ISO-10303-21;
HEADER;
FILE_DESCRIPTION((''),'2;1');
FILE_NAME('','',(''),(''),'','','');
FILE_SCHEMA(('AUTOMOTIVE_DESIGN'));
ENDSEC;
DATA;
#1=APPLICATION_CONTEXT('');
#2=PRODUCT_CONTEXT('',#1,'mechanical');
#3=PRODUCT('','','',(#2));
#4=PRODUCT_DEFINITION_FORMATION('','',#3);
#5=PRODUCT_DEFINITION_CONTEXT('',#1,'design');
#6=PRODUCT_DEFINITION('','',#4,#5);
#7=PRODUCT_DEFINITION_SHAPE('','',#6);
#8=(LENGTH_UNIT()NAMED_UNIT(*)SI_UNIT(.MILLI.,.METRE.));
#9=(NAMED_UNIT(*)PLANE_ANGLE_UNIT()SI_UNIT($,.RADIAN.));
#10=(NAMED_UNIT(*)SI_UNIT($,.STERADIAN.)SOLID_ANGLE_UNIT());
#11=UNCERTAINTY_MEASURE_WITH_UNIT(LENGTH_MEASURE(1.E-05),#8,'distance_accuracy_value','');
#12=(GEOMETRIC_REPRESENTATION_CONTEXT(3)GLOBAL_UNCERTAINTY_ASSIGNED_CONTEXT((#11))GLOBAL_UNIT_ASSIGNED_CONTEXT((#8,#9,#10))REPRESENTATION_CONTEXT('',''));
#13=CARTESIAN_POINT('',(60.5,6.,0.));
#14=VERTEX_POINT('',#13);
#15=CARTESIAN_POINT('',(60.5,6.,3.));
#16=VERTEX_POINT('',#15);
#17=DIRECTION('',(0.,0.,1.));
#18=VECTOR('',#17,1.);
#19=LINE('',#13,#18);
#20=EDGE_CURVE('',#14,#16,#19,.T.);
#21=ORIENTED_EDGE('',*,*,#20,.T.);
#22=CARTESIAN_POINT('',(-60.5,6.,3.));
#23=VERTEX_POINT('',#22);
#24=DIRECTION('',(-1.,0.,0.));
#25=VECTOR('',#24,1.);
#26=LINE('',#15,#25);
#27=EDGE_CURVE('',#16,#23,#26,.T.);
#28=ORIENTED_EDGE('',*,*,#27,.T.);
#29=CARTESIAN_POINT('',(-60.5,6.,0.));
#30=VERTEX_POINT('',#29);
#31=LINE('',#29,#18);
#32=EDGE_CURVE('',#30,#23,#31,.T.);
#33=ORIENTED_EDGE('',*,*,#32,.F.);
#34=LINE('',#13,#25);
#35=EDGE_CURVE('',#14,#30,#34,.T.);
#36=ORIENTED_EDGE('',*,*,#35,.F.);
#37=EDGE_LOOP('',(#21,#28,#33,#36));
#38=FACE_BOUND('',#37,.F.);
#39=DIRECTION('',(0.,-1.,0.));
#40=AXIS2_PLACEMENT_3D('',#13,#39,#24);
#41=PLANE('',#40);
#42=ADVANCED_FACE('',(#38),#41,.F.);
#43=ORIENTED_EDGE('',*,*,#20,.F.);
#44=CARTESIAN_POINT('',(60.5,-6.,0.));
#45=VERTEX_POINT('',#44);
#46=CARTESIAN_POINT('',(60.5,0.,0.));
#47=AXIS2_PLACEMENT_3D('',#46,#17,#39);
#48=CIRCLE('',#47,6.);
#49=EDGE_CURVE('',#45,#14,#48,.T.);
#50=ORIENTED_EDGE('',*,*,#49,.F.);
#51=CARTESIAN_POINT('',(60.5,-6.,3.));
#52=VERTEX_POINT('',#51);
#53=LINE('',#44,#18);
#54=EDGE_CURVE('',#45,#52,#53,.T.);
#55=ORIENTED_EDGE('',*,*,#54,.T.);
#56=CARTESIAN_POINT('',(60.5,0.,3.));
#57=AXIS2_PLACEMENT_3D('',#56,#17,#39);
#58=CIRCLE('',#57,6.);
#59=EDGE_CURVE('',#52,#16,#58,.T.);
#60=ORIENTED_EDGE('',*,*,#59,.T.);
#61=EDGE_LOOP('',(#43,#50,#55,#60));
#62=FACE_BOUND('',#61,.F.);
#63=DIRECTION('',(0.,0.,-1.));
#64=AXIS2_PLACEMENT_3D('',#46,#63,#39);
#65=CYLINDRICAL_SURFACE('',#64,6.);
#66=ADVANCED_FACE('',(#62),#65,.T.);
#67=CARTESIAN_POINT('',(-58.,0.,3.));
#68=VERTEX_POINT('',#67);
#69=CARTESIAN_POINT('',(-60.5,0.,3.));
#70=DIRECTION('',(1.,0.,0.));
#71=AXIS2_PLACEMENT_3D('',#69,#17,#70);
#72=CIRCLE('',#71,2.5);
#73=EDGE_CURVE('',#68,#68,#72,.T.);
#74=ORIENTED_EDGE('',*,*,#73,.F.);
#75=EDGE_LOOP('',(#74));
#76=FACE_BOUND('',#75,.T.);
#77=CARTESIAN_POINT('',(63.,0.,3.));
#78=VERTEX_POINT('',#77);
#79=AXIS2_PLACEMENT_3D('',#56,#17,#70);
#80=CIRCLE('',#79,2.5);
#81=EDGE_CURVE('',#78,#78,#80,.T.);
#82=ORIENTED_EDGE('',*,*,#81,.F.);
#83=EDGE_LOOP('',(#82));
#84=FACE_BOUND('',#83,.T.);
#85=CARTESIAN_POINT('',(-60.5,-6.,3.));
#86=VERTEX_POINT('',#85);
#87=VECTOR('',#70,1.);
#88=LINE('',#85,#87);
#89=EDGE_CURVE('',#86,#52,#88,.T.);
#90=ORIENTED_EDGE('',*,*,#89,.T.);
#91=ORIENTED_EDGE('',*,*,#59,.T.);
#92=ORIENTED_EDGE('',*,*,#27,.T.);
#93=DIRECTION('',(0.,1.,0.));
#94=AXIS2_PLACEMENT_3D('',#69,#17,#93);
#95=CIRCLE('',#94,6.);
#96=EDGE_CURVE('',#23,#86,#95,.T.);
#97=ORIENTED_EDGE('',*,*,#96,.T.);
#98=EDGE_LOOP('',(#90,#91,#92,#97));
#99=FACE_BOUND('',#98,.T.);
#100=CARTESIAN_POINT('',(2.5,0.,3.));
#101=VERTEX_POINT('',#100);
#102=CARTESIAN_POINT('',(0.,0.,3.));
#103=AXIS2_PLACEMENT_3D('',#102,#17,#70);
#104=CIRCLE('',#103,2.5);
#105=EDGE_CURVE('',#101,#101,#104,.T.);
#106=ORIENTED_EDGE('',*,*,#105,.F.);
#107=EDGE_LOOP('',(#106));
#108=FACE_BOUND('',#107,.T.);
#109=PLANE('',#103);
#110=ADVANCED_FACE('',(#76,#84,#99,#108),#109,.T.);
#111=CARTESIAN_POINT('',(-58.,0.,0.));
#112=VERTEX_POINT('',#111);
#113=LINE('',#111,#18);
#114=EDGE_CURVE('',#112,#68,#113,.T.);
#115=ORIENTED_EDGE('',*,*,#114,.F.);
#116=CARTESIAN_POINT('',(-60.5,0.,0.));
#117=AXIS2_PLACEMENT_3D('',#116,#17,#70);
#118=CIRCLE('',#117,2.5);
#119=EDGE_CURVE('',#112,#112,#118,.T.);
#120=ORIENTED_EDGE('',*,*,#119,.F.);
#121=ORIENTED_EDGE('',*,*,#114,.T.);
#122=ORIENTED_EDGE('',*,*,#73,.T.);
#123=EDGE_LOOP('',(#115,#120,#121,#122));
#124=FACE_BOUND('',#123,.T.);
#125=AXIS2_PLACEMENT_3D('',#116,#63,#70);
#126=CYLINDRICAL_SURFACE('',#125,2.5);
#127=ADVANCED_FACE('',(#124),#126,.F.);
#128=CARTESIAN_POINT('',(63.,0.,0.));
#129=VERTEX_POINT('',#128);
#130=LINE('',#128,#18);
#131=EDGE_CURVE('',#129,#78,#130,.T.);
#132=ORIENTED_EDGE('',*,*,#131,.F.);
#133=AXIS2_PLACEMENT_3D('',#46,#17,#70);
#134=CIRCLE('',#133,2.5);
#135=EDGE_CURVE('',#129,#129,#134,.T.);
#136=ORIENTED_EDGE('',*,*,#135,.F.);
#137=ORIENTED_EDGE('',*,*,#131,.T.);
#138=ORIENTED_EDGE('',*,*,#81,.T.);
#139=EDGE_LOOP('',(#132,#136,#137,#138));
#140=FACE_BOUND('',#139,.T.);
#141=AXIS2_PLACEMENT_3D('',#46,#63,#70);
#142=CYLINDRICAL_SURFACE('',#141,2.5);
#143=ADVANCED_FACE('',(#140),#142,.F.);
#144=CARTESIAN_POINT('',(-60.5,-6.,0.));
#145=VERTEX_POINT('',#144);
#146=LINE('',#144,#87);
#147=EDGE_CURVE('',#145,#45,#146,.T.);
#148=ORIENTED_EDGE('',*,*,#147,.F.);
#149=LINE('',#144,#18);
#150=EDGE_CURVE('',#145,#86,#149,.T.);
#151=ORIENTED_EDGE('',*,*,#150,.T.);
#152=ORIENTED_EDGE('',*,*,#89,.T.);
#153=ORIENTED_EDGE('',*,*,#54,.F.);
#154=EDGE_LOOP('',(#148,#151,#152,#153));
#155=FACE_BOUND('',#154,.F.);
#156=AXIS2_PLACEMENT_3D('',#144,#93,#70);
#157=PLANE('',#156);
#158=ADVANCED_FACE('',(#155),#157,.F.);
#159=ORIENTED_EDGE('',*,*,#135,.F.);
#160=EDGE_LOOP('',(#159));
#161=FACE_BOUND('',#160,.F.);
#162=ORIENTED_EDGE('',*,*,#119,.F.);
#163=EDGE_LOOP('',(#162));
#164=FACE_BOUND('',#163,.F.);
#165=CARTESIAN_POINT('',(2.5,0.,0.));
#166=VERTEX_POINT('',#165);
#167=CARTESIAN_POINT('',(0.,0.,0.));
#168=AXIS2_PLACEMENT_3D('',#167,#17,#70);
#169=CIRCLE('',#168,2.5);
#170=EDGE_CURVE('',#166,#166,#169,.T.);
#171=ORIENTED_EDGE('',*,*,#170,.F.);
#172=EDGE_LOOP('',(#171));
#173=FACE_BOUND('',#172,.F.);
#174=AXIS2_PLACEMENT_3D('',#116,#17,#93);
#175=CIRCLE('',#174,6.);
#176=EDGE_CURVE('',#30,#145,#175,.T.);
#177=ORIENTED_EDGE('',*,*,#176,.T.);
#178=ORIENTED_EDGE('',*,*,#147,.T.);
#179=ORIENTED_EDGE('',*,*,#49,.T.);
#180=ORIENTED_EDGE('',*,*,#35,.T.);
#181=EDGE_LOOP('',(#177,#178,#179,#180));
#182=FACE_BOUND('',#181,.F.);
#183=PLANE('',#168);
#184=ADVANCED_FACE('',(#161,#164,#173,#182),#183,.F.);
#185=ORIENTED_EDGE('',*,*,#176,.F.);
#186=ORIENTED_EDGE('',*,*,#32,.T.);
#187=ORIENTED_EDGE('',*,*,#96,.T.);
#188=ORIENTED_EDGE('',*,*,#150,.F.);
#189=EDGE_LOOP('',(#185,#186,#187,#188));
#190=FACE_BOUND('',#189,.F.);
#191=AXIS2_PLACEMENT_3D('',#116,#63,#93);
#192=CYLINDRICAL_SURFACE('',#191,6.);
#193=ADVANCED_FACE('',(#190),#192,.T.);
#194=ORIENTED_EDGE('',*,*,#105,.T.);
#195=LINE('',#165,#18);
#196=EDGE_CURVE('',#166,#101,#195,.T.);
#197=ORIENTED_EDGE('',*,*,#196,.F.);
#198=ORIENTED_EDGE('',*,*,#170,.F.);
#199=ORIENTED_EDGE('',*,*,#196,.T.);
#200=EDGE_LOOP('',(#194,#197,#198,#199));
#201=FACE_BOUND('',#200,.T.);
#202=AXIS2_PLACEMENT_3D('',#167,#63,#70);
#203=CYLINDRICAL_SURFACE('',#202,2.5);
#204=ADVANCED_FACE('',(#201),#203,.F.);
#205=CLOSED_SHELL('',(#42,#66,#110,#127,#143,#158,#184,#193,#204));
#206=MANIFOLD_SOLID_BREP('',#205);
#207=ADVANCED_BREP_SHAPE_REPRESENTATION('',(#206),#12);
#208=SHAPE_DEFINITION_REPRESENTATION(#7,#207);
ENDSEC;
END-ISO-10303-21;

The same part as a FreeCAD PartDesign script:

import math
import FreeCAD as App
import Part
import Sketcher
from FreeCAD import Vector

doc = App.newDocument("Part")
body = doc.addObject("PartDesign::Body", "Body")

sketch1 = doc.addObject("Sketcher::SketchObject", "Sketch")
body.addObject(sketch1)
sketch1.AttachmentSupport = (doc.XY_Plane, [""])
sketch1.MapMode = "FlatFace"
sketch1.addGeometry(Part.ArcOfCircle(Part.Circle(Vector(-60.5, 0, 0), Vector(0, 0, 1), 6), math.radians(90), math.radians(270)), False)
sketch1.addGeometry(Part.LineSegment(Vector(-60.5, -6, 0), Vector(60.5, -6, 0)), False)
sketch1.addGeometry(Part.ArcOfCircle(Part.Circle(Vector(60.5, 0, 0), Vector(0, 0, 1), 6), math.radians(-90), math.radians(90)), False)
sketch1.addGeometry(Part.LineSegment(Vector(60.5, 6, 0), Vector(-60.5, 6, 0)), False)
sketch1.addGeometry(Part.Circle(Vector(-60.5, 0, 0), Vector(0, 0, 1), 2.5), False)
sketch1.addGeometry(Part.Circle(Vector(0, 0, 0), Vector(0, 0, 1), 2.5), False)
sketch1.addGeometry(Part.Circle(Vector(60.5, 0, 0), Vector(0, 0, 1), 2.5), False)
sketch1.addConstraint(Sketcher.Constraint("Tangent", 0, 2, 1, 1))
sketch1.addConstraint(Sketcher.Constraint("Tangent", 1, 2, 2, 1))
sketch1.addConstraint(Sketcher.Constraint("Tangent", 2, 2, 3, 1))
sketch1.addConstraint(Sketcher.Constraint("Tangent", 3, 2, 0, 1))
sketch1.addConstraint(Sketcher.Constraint("Horizontal", 1))
sketch1.addConstraint(Sketcher.Constraint("Horizontal", 3))
sketch1.addConstraint(Sketcher.Constraint("Coincident", 5, 3, -1, 1))
sketch1.addConstraint(Sketcher.Constraint("Coincident", 4, 3, 0, 3))
sketch1.addConstraint(Sketcher.Constraint("Coincident", 6, 3, 2, 3))
sketch1.addConstraint(Sketcher.Constraint("Equal", 4, 5))
sketch1.addConstraint(Sketcher.Constraint("Equal", 5, 6))
sketch1.addConstraint(Sketcher.Constraint("Symmetric", 0, 3, 2, 3, -1, 1))
sketch1.addConstraint(Sketcher.Constraint("Diameter", 4, 5.0))
sketch1.addConstraint(Sketcher.Constraint("Radius", 0, 6.0))
sketch1.addConstraint(Sketcher.Constraint("DistanceX", 1, 1, 1, 2, 121.0))
pad1 = doc.addObject("PartDesign::Pad", "Pad")
body.addObject(pad1)
pad1.Profile = sketch1
pad1.Length = 3

doc.recompute()
